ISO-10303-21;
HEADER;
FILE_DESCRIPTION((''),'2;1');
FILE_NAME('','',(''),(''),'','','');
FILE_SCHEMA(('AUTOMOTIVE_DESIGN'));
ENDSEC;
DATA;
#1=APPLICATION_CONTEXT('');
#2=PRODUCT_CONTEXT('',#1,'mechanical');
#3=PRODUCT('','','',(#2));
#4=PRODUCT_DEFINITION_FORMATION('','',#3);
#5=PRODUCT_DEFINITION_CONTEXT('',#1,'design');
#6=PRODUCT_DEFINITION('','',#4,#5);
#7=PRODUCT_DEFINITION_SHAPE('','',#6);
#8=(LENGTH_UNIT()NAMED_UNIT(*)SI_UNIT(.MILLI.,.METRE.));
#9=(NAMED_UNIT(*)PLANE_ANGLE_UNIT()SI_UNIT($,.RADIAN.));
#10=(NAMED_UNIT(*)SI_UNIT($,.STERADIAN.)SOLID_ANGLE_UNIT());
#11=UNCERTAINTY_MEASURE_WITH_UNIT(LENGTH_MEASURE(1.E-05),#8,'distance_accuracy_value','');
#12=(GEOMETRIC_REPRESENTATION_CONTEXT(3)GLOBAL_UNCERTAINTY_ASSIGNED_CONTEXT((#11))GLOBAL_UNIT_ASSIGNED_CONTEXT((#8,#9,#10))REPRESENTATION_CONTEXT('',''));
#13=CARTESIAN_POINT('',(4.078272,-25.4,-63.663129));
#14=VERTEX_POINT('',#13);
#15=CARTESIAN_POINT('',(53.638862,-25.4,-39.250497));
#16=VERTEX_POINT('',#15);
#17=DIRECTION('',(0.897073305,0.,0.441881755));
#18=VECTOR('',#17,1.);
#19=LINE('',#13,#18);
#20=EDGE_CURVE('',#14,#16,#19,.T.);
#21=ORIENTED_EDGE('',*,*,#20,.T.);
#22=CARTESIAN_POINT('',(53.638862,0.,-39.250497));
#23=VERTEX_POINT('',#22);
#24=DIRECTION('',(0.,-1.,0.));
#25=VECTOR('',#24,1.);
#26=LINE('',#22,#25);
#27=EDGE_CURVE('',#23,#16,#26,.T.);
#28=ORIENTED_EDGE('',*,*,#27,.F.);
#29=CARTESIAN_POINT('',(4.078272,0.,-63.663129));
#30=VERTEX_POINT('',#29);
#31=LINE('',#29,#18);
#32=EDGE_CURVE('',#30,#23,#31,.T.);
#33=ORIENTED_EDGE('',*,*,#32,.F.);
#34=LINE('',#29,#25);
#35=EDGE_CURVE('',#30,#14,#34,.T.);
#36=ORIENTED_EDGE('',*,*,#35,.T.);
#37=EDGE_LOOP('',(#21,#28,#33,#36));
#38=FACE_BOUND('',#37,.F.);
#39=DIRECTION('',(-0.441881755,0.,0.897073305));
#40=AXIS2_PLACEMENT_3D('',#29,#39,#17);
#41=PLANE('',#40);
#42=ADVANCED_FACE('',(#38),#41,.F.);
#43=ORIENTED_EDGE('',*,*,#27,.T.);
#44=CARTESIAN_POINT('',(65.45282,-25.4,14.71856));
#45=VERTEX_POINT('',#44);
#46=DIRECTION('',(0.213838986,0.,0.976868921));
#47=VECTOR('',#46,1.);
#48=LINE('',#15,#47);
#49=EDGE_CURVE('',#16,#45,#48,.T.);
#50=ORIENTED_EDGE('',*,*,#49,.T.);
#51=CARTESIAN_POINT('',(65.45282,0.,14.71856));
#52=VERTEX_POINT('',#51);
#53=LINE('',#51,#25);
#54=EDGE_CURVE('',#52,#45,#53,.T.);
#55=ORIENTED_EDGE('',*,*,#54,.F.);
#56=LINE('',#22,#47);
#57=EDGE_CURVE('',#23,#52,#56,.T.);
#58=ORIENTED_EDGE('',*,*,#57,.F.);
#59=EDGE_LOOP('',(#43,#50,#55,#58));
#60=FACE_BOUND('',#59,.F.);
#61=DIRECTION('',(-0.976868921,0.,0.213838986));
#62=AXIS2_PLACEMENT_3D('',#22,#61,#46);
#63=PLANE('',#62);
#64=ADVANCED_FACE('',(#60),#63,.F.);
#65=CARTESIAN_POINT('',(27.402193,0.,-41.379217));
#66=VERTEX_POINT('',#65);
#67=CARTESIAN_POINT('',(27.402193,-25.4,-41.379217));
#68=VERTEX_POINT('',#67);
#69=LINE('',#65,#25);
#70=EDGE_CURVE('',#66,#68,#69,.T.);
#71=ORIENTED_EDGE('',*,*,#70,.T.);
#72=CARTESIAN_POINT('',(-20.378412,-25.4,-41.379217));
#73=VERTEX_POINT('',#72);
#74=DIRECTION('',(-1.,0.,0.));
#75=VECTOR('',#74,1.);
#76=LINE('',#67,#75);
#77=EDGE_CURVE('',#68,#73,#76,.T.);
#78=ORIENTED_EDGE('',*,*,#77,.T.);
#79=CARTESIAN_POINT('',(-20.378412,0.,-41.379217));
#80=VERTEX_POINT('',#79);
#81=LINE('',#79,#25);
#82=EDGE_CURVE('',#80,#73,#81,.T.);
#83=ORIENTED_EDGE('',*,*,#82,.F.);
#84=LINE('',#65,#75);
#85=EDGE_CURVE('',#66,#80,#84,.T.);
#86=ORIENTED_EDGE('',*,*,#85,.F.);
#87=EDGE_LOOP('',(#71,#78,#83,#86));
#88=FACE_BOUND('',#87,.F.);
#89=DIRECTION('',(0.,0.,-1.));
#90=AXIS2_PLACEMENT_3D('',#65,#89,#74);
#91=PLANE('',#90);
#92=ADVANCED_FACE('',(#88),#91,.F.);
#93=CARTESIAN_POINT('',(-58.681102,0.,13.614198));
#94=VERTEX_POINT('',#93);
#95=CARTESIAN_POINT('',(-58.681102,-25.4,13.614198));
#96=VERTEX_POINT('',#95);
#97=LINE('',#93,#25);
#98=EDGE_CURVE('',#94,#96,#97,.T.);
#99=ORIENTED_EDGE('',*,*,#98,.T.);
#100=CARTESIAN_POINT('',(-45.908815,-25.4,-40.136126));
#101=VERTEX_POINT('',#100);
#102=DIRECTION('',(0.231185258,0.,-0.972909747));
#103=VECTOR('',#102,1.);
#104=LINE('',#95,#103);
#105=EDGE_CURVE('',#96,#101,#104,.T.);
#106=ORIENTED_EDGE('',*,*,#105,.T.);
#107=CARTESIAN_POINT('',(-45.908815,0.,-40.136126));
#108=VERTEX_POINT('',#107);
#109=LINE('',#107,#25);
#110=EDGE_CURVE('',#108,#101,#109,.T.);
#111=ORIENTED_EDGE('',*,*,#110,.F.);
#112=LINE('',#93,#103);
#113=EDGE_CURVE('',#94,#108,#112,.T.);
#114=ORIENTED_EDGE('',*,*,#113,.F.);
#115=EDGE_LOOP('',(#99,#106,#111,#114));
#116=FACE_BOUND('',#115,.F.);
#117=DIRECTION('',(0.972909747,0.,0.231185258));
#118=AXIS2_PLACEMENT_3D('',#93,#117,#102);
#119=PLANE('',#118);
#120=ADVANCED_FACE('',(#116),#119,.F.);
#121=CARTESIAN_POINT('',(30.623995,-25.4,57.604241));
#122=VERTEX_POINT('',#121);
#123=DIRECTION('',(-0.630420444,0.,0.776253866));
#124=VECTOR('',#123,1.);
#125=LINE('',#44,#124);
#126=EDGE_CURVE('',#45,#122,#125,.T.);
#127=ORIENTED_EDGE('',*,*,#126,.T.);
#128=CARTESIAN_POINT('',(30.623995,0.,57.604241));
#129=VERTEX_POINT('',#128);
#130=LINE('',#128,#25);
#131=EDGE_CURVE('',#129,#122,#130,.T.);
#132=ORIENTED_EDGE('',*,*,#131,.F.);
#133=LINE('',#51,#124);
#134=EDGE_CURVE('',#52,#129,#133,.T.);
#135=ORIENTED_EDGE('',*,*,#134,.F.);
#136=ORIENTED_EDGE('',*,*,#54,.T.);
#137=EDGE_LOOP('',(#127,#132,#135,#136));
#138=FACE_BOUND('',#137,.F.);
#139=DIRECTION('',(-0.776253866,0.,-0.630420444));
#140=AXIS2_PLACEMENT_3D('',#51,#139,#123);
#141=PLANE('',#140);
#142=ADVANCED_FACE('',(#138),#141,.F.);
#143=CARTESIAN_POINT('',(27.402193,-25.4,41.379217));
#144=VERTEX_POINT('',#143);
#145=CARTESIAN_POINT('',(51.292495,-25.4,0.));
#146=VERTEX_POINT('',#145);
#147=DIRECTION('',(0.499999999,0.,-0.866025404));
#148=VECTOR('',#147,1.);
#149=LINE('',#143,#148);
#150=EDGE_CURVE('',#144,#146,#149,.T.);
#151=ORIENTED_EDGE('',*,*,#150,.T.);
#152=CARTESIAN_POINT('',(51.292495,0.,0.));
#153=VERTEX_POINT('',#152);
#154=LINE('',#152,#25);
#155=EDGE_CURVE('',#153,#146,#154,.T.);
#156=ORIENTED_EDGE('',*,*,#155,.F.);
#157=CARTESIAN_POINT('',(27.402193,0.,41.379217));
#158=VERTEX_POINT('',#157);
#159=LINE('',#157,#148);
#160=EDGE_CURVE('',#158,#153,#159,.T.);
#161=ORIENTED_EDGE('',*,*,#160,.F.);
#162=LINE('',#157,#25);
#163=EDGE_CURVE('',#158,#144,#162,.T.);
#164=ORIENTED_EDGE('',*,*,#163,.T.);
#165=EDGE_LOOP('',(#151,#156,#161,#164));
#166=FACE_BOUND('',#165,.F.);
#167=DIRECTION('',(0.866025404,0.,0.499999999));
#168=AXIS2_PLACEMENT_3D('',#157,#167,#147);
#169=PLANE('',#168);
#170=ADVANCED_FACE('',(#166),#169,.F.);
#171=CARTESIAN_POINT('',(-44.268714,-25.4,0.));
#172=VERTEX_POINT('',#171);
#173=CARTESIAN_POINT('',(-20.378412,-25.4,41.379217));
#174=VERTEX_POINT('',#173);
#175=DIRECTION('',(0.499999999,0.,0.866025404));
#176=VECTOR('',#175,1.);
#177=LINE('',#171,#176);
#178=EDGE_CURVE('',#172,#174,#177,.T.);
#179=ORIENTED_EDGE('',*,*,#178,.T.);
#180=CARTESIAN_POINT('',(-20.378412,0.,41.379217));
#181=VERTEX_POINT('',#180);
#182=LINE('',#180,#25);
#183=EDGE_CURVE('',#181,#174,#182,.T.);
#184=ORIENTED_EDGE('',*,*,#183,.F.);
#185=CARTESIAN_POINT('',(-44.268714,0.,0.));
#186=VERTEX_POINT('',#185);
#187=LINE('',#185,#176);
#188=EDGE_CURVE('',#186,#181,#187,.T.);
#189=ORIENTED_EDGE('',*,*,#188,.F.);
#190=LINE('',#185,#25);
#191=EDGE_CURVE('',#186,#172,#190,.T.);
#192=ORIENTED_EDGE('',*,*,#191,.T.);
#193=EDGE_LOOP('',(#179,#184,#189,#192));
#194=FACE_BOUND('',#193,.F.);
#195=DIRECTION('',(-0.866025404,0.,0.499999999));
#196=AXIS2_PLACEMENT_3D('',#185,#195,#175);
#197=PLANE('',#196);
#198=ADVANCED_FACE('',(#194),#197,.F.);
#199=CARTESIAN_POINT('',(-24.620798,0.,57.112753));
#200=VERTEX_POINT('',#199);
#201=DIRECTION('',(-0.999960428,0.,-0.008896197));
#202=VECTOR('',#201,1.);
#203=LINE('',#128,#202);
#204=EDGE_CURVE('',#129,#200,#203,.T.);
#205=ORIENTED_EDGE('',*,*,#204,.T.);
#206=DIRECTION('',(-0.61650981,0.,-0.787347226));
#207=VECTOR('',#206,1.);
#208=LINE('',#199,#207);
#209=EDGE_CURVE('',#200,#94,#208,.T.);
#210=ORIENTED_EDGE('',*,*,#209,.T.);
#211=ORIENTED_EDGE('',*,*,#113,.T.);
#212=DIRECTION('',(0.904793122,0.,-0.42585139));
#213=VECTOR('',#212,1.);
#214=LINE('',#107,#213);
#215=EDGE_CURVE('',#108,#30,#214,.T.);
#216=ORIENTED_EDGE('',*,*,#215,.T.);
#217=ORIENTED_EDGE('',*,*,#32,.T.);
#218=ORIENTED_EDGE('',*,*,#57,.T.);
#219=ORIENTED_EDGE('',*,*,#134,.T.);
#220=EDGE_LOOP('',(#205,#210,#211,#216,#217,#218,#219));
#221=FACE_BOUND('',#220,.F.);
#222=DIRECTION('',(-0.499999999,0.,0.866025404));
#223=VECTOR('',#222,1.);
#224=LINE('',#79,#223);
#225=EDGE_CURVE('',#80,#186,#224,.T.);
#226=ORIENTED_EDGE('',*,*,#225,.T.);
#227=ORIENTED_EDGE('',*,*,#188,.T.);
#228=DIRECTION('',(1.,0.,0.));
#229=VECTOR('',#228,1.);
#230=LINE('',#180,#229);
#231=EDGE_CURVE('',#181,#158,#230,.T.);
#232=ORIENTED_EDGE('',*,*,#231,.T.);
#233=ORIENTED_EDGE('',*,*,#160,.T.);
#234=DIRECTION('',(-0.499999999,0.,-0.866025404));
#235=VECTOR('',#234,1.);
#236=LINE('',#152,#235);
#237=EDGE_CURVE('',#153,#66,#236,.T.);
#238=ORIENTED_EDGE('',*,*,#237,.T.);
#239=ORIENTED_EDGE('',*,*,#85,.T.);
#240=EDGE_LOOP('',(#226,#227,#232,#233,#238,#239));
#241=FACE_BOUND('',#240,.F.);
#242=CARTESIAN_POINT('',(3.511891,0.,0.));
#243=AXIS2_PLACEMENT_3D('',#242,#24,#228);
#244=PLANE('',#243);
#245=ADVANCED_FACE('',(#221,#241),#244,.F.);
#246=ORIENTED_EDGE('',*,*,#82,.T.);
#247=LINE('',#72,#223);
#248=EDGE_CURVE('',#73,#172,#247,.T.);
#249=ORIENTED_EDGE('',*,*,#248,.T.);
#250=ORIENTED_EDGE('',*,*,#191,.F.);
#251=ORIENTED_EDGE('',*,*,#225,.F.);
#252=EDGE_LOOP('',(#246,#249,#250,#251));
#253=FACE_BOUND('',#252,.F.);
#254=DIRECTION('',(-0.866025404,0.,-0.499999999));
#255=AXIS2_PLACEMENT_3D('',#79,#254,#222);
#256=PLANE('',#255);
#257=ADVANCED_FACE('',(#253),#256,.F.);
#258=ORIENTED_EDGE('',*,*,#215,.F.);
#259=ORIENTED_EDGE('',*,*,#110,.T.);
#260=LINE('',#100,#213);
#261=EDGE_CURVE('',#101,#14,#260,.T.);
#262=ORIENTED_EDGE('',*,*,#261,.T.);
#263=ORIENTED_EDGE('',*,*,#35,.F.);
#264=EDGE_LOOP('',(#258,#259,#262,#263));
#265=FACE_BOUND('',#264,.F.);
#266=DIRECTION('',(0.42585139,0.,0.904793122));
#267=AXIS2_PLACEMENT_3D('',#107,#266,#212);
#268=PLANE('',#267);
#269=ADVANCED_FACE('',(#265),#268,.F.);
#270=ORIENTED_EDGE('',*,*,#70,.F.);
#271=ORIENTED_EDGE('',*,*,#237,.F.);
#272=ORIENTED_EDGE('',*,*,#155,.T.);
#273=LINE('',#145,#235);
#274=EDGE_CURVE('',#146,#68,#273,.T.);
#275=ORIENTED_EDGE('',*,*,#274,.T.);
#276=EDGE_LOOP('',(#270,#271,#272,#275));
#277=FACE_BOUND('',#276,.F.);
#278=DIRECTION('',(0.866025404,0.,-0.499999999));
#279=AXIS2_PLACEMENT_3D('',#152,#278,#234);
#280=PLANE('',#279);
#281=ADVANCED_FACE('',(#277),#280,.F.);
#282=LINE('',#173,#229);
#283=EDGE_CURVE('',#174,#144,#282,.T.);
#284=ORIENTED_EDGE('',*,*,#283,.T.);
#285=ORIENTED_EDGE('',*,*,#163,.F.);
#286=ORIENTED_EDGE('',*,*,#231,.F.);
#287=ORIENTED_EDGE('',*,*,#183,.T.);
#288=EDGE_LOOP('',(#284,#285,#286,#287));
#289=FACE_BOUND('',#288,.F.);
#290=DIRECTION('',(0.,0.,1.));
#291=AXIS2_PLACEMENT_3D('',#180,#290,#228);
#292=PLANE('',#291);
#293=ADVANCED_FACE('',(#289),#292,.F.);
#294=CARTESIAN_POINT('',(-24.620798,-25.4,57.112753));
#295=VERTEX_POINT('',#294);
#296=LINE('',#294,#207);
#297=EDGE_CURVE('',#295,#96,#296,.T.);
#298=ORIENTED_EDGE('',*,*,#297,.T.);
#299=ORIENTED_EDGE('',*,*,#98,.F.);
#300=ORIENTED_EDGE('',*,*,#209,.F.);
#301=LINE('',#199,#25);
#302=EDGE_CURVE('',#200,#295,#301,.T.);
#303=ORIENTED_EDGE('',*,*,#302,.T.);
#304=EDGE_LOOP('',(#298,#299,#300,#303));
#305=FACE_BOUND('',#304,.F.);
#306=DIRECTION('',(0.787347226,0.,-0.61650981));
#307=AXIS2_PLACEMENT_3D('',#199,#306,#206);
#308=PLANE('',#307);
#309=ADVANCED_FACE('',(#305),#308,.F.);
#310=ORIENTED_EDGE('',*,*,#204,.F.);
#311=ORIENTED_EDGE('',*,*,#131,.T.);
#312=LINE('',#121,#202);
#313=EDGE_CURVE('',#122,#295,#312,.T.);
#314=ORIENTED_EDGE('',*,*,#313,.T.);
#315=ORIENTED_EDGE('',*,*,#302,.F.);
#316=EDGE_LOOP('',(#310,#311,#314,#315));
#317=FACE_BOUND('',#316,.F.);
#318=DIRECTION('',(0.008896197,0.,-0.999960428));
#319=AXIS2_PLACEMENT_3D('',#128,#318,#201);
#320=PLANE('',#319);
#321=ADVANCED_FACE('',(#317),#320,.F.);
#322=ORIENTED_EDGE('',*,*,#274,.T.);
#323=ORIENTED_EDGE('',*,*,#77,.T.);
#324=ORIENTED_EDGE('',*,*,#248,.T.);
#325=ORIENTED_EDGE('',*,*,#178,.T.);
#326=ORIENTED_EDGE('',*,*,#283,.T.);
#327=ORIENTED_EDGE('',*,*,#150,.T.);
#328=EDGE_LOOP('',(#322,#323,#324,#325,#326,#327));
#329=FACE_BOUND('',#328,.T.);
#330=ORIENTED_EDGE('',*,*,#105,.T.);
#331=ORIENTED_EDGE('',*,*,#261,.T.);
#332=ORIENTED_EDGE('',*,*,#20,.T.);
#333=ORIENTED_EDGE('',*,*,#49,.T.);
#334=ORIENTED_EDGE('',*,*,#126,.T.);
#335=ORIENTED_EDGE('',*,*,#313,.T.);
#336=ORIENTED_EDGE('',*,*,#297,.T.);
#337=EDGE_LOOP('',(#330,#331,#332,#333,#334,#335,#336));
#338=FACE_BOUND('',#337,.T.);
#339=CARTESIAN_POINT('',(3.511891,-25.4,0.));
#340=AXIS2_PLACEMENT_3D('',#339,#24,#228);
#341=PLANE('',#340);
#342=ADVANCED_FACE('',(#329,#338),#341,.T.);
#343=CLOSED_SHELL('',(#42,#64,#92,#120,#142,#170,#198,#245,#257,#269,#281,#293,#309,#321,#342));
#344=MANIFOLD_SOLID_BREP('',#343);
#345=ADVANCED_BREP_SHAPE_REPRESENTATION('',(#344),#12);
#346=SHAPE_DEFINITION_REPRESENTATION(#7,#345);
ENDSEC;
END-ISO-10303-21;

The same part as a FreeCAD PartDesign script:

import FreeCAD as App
import Part
import Sketcher
from FreeCAD import Vector
Q = App.Units.Quantity


def add_polygon(sketch, points):
    """Adds a closed chain of lines whose ends are joined by coincident constraints."""
    first, n = sketch.GeometryCount, len(points)
    for a, b in zip(points, points[1:] + points[:1]):
        sketch.addGeometry(Part.LineSegment(App.Vector(*a, 0), App.Vector(*b, 0)), False)
    for i in range(n):
        sketch.addConstraint(Sketcher.Constraint("Coincident", first + i, 2, first + (i + 1) % n, 1))

doc = App.newDocument("Part")
body = doc.addObject("PartDesign::Body", "Body")

sketch1 = doc.addObject("Sketcher::SketchObject", "Sketch")
body.addObject(sketch1)
sketch1.AttachmentSupport = (doc.XZ_Plane, [""])
sketch1.MapMode = "FlatFace"
add_polygon(sketch1, [(4.078272, -63.663129), (53.638862, -39.250497), (65.45282, 14.71856), (30.623995, 57.604241), (-24.620798, 57.112753), (-58.681102, 13.614198), (-45.908815, -40.136126)])
add_polygon(sketch1, [(27.402193, 41.379217), (51.292495, 0), (27.402193, -41.379217), (-20.378412, -41.379217), (-44.268714, 0), (-20.378412, 41.379217)])
sketch1.addConstraint([
    Sketcher.Constraint("Horizontal", 9),
    Sketcher.Constraint("Horizontal", 12),
    Sketcher.Constraint("Symmetric", 9, 2, 11, 2, -1),
    Sketcher.Constraint("PointOnObject", 7, 2, -1),
    Sketcher.Constraint("PointOnObject", 10, 2, -1),
    Sketcher.Constraint("Parallel", 7, 10),
    Sketcher.Constraint("Parallel", 8, 11),
    Sketcher.Constraint("Equal", 0, 1),
    Sketcher.Constraint("Equal", 1, 2),
    Sketcher.Constraint("Equal", 2, 3),
    Sketcher.Constraint("Equal", 3, 4),
    Sketcher.Constraint("Equal", 4, 5),
    Sketcher.Constraint("Equal", 5, 6),
    Sketcher.Constraint("Angle", 7, Q("-60 deg")),
    Sketcher.Constraint("DistanceX", 5, 2, 0, 2, Q("3.9191999 in")),
    Sketcher.Constraint("DistanceX", 3, 2, -1, 1, Q("24.620798 mm")),
    Sketcher.Constraint("DistanceX", 2, 2, 7, 2, Q("20.6685 mm")),
    Sketcher.Constraint("DistanceX", 5, 2, 10, 2, Q("1.640101 mm")),
    Sketcher.Constraint("Distance", 0, Q("55.246979 mm")),
    Sketcher.Constraint("DistanceX", 9, 2, 9, 1, Q("47.780605 mm")),
    Sketcher.Constraint("DistanceX", -1, 1, 1, 2, Q("65.45282 mm")),
    Sketcher.Constraint("DistanceY", -1, 1, 1, 2, Q("14.71856 mm")),
    Sketcher.Constraint("DistanceY", -1, 1, 2, 2, Q("57.604241 mm")),
    Sketcher.Constraint("DistanceY", 6, 2, -1, 1, Q("63.663129 mm")),
    Sketcher.Constraint("DistanceX", 3, 2, 0, 2, Q("78.25966 mm")),
])
pad1 = doc.addObject("PartDesign::Pad", "Pad")
body.addObject(pad1)
pad1.Profile = sketch1
pad1.Length = Q("1 in")

doc.recompute()
